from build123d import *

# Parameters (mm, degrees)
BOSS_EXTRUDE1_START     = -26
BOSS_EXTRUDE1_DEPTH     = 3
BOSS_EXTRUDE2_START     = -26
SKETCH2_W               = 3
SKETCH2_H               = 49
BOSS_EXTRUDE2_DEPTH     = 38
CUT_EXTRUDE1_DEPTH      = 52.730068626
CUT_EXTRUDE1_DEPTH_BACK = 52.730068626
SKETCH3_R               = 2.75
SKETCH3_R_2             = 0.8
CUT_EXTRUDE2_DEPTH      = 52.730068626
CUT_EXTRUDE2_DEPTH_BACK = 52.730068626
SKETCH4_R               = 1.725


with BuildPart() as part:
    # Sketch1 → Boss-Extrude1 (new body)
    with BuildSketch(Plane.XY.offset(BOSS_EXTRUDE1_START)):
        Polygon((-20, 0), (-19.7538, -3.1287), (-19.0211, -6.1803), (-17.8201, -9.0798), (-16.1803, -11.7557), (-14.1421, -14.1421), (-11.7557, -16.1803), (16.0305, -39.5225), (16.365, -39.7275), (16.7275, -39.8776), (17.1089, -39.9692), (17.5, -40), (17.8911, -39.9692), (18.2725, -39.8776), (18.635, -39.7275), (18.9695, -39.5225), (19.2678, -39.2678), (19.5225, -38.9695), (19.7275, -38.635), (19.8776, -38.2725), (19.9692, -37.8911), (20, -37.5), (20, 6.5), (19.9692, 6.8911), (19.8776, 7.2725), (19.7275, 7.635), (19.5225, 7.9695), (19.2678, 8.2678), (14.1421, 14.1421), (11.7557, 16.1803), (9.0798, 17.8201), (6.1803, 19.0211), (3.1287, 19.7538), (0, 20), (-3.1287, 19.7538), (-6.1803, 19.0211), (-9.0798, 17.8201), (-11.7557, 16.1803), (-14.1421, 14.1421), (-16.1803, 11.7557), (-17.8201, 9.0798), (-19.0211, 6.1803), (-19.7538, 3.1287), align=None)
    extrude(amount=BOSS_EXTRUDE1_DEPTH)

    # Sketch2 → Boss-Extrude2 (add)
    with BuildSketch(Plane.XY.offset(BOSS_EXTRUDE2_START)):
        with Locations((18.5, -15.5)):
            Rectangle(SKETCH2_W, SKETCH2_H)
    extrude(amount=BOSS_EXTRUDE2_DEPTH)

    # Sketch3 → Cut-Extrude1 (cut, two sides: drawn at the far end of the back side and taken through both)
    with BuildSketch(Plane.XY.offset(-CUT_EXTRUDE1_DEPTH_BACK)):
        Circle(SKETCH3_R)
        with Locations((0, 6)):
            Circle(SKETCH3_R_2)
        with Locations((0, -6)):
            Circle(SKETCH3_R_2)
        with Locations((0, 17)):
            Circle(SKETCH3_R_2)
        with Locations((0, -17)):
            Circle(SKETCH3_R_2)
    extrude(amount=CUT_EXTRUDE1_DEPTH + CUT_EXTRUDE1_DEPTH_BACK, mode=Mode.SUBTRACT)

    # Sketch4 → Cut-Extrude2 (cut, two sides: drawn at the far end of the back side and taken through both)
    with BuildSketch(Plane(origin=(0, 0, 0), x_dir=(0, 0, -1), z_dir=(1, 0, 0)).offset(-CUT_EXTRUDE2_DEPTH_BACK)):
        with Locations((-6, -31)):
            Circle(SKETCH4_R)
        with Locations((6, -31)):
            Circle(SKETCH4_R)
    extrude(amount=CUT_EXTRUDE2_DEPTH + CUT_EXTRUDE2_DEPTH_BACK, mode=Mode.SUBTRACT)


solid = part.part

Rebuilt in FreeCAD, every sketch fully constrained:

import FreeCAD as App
import Part
import Sketcher
from FreeCAD import Vector
Q = App.Units.Quantity


def add_polygon(sketch, points):
    """Adds a closed chain of lines whose ends are joined by coincident constraints."""
    first, n = sketch.GeometryCount, len(points)
    for a, b in zip(points, points[1:] + points[:1]):
        sketch.addGeometry(Part.LineSegment(App.Vector(*a, 0), App.Vector(*b, 0)), False)
    for i in range(n):
        sketch.addConstraint(Sketcher.Constraint("Coincident", first + i, 2, first + (i + 1) % n, 1))

doc = App.newDocument("Part")
body = doc.addObject("PartDesign::Body", "Body")

sketch1 = doc.addObject("Sketcher::SketchObject", "Sketch")
body.addObject(sketch1)
sketch1.AttachmentSupport = (doc.XY_Plane, [""])
sketch1.MapMode = "FlatFace"
sketch1.AttachmentOffset = App.Placement(Vector(0, 0, -26), App.Rotation())
add_polygon(sketch1, [(-20, 0), (-19.75, -3.13), (-19.02, -6.18), (-17.82, -9.08), (-16.18, -11.76), (-14.14, -14.14), (-11.76, -16.18), (16.03, -39.52), (16.36, -39.73), (16.73, -39.88), (17.11, -39.97), (17.5, -40), (17.89, -39.97), (18.27, -39.88), (18.64, -39.73), (18.97, -39.52), (19.27, -39.27), (19.52, -38.97), (19.73, -38.63), (19.88, -38.27), (19.97, -37.89), (20, -37.5), (20, 6.5), (19.97, 6.89), (19.88, 7.27), (19.73, 7.63), (19.52, 7.97), (19.27, 8.27), (14.14, 14.14), (11.76, 16.18), (9.08, 17.82), (6.18, 19.02), (3.13, 19.75), (0, 20), (-3.13, 19.75), (-6.18, 19.02), (-9.08, 17.82), (-11.76, 16.18), (-14.14, 14.14), (-16.18, 11.76), (-17.82, 9.08), (-19.02, 6.18), (-19.75, 3.13)])
sketch1.addConstraint(Sketcher.Constraint("Vertical", 21))
sketch1.addConstraint(Sketcher.Constraint("Symmetric", 4, 2, 27, 2, -1, 1))
sketch1.addConstraint(Sketcher.Constraint("Symmetric", 5, 2, 28, 2, -1, 1))
sketch1.addConstraint(Sketcher.Constraint("Symmetric", 31, 2, 33, 2, -2))
sketch1.addConstraint(Sketcher.Constraint("Symmetric", 30, 2, 34, 2, -2))
sketch1.addConstraint(Sketcher.Constraint("Symmetric", 29, 2, 35, 2, -2))
sketch1.addConstraint(Sketcher.Constraint("Symmetric", 28, 2, 36, 2, -2))
sketch1.addConstraint(Sketcher.Constraint("Symmetric", 27, 2, 37, 2, -2))
sketch1.addConstraint(Sketcher.Constraint("Symmetric", 3, 2, 38, 2, -1))
sketch1.addConstraint(Sketcher.Constraint("Symmetric", 2, 2, 39, 2, -1))
sketch1.addConstraint(Sketcher.Constraint("Symmetric", 1, 2, 40, 2, -1))
sketch1.addConstraint(Sketcher.Constraint("Symmetric", 0, 2, 41, 2, -1))
sketch1.addConstraint(Sketcher.Constraint("PointOnObject", 32, 2, -2))
sketch1.addConstraint(Sketcher.Constraint("PointOnObject", 42, 2, -1))
sketch1.addConstraint(Sketcher.Constraint("Perpendicular", 7, 17))
sketch1.addConstraint(Sketcher.Constraint("Perpendicular", 8, 18))
sketch1.addConstraint(Sketcher.Constraint("Perpendicular", 9, 19))
sketch1.addConstraint(Sketcher.Constraint("Perpendicular", 10, 20))
sketch1.addConstraint(Sketcher.Constraint("Perpendicular", 11, 22))
sketch1.addConstraint(Sketcher.Constraint("Perpendicular", 12, 23))
sketch1.addConstraint(Sketcher.Constraint("Perpendicular", 13, 24))
sketch1.addConstraint(Sketcher.Constraint("Perpendicular", 14, 25))
sketch1.addConstraint(Sketcher.Constraint("Perpendicular", 15, 26))
sketch1.addConstraint(Sketcher.Constraint("Perpendicular", 0, 33))
sketch1.addConstraint(Sketcher.Constraint("Perpendicular", 1, 34))
sketch1.addConstraint(Sketcher.Constraint("Perpendicular", 2, 35))
sketch1.addConstraint(Sketcher.Constraint("Perpendicular", 3, 36))
sketch1.addConstraint(Sketcher.Constraint("Perpendicular", 4, 37))
sketch1.addConstraint(Sketcher.Constraint("Horizontal", 9, 2, 11, 2))
sketch1.addConstraint(Sketcher.Constraint("Horizontal", 8, 2, 12, 2))
sketch1.addConstraint(Sketcher.Constraint("Horizontal", 7, 2, 13, 2))
sketch1.addConstraint(Sketcher.Constraint("Horizontal", 6, 2, 14, 2))
sketch1.addConstraint(Sketcher.Constraint("Vertical", 19, 2, 22, 2))
sketch1.addConstraint(Sketcher.Constraint("Vertical", 18, 2, 23, 2))
sketch1.addConstraint(Sketcher.Constraint("Vertical", 17, 2, 24, 2))
sketch1.addConstraint(Sketcher.Constraint("Vertical", 16, 2, 25, 2))
sketch1.addConstraint(Sketcher.Constraint("Vertical", 15, 2, 26, 2))
sketch1.addConstraint(Sketcher.Constraint("Equal", 0, 3))
sketch1.addConstraint(Sketcher.Constraint("Equal", 4, 5))
sketch1.addConstraint(Sketcher.Constraint("Equal", 10, 11))
sketch1.addConstraint(Sketcher.Constraint("Equal", 9, 12))
sketch1.addConstraint(Sketcher.Constraint("Equal", 8, 13))
sketch1.addConstraint(Sketcher.Constraint("Equal", 7, 14))
sketch1.addConstraint(Sketcher.Constraint("Equal", 12, 15))
sketch1.addConstraint(Sketcher.Constraint("Equal", 15, 16))
sketch1.addConstraint(Sketcher.Constraint("Equal", 14, 17))
sketch1.addConstraint(Sketcher.Constraint("Equal", 13, 18))
sketch1.addConstraint(Sketcher.Constraint("Equal", 16, 19))
sketch1.addConstraint(Sketcher.Constraint("Equal", 11, 20))
sketch1.addConstraint(Sketcher.Constraint("Equal", 23, 26))
sketch1.addConstraint(Sketcher.Constraint("Equal", 3, 29))
sketch1.addConstraint(Sketcher.Constraint("Equal", 2, 30))
sketch1.addConstraint(Sketcher.Constraint("Equal", 1, 31))
sketch1.addConstraint(Sketcher.Constraint("Equal", 29, 32))
sketch1.addConstraint(Sketcher.Constraint("DistanceY", 21, 1, 21, 2, Q("44 mm")))
sketch1.addConstraint(Sketcher.Constraint("DistanceY", 10, 2, -1, 1, Q("40 mm")))
sketch1.addConstraint(Sketcher.Constraint("DistanceX", -1, 1, 20, 2, Q("20 mm")))
sketch1.addConstraint(Sketcher.Constraint("DistanceY", -1, 1, 32, 2, Q("20 mm")))
sketch1.addConstraint(Sketcher.Constraint("DistanceY", 5, 2, 1, 2, Q("10 mm")))
sketch1.addConstraint(Sketcher.Constraint("DistanceX", -1, 1, 10, 2, Q("17.5 mm")))
sketch1.addConstraint(Sketcher.Constraint("DistanceX", 12, 2, 16, 2, Q("1.25 mm")))
sketch1.addConstraint(Sketcher.Constraint("DistanceX", -1, 1, 7, 2, Q("16.365 mm")))
sketch1.addConstraint(Sketcher.Constraint("DistanceX", 1, 2, 2, 2, Q("1.201 mm")))
sketch1.addConstraint(Sketcher.Constraint("DistanceY", 3, 2, 0, 2, Q("8.627 mm")))
sketch1.addConstraint(Sketcher.Constraint("DistanceX", 2, 2, 4, 2, Q("3.678 mm")))
sketch1.addConstraint(Sketcher.Constraint("DistanceY", 7, 2, 6, 2, Q("0.205 mm")))
sketch1.addConstraint(Sketcher.Constraint("DistanceX", 6, 2, 8, 2, Q("0.697 mm")))
sketch1.addConstraint(Sketcher.Constraint("DistanceX", 4, 2, 9, 2, Q("31.251 mm")))
sketch1.addConstraint(Sketcher.Constraint("DistanceX", 8, 2, 12, 2, Q("1.545 mm")))
sketch1.addConstraint(Sketcher.Constraint("DistanceX", 0, 2, 22, 2, Q("39.723 mm")))
sketch1.addConstraint(Sketcher.Constraint("DistanceX", 29, 2, 26, 2, Q("10.188 mm")))
sketch1.addConstraint(Sketcher.Constraint("DistanceY", 26, 2, 31, 2, Q("11.486 mm")))
sketch1.addConstraint(Sketcher.Constraint("DistanceX", 33, 2, 30, 2, Q("9.309 mm")))
sketch1.addConstraint(Sketcher.Constraint("DistanceX", 0, 2, -1, 1, Q("19.7538 mm")))
sketch1.addConstraint(Sketcher.Constraint("DistanceY", 0, 2, -1, 1, Q("3.1287 mm")))
pad1 = doc.addObject("PartDesign::Pad", "Pad")
body.addObject(pad1)
pad1.Profile = sketch1
pad1.Length = 3

sketch2 = doc.addObject("Sketcher::SketchObject", "Sketch001")
body.addObject(sketch2)
sketch2.AttachmentSupport = (doc.XY_Plane, [""])
sketch2.MapMode = "FlatFace"
sketch2.AttachmentOffset = App.Placement(Vector(0, 0, -26), App.Rotation())
add_polygon(sketch2, [(17, 9), (17, -40), (20, -40), (20, 9)])
sketch2.addConstraint(Sketcher.Constraint("Vertical", 0))
sketch2.addConstraint(Sketcher.Constraint("Horizontal", 1))
sketch2.addConstraint(Sketcher.Constraint("Vertical", 2))
sketch2.addConstraint(Sketcher.Constraint("Horizontal", 3))
sketch2.addConstraint(Sketcher.Constraint("DistanceX", 1, 1, 1, 2, Q("3 mm")))
sketch2.addConstraint(Sketcher.Constraint("DistanceY", 0, 2, 0, 1, Q("49 mm")))
sketch2.addConstraint(Sketcher.Constraint("DistanceX", -1, 1, 0, 2, Q("17 mm")))
sketch2.addConstraint(Sketcher.Constraint("DistanceY", 0, 2, -1, 1, Q("40 mm")))
pad2 = doc.addObject("PartDesign::Pad", "Pad001")
body.addObject(pad2)
pad2.Profile = sketch2
pad2.Length = 38

sketch3 = doc.addObject("Sketcher::SketchObject", "Sketch002")
body.addObject(sketch3)
sketch3.AttachmentSupport = (doc.XY_Plane, [""])
sketch3.MapMode = "FlatFace"
sketch3.addGeometry(Part.Circle(Vector(0, 0, 0), Vector(0, 0, 1), 2.8), False)
sketch3.addGeometry(Part.Circle(Vector(0, 6, 0), Vector(0, 0, 1), 0.8), False)
sketch3.addGeometry(Part.Circle(Vector(0, -6, 0), Vector(0, 0, 1), 0.8), False)
sketch3.addGeometry(Part.Circle(Vector(0, 17, 0), Vector(0, 0, 1), 0.8), False)
sketch3.addGeometry(Part.Circle(Vector(0, -17, 0), Vector(0, 0, 1), 0.8), False)
sketch3.addConstraint(Sketcher.Constraint("Coincident", 0, 3, -1, 1))
sketch3.addConstraint(Sketcher.Constraint("Equal", 1, 2))
sketch3.addConstraint(Sketcher.Constraint("Equal", 2, 3))
sketch3.addConstraint(Sketcher.Constraint("Equal", 3, 4))
sketch3.addConstraint(Sketcher.Constraint("Symmetric", 1, 3, 2, 3, -1, 1))
sketch3.addConstraint(Sketcher.Constraint("Symmetric", 3, 3, 4, 3, -1, 1))
sketch3.addConstraint(Sketcher.Constraint("PointOnObject", 1, 3, -2))
sketch3.addConstraint(Sketcher.Constraint("PointOnObject", 3, 3, -2))
sketch3.addConstraint(Sketcher.Constraint("Diameter", 0, Q("5.5 mm")))
sketch3.addConstraint(Sketcher.Constraint("Diameter", 1, Q("1.6 mm")))
sketch3.addConstraint(Sketcher.Constraint("DistanceY", -1, 1, 1, 3, Q("6 mm")))
sketch3.addConstraint(Sketcher.Constraint("DistanceY", -1, 1, 3, 3, Q("17 mm")))
pocket1 = doc.addObject("PartDesign::Pocket", "Pocket")
body.addObject(pocket1)
pocket1.Profile = sketch3
pocket1.Type = "ThroughAll"
pocket1.Midplane = True

sketch4 = doc.addObject("Sketcher::SketchObject", "Sketch003")
body.addObject(sketch4)
sketch4.AttachmentSupport = (doc.YZ_Plane, [""])
sketch4.MapMode = "FlatFace"
sketch4.addGeometry(Part.Circle(Vector(-31, 6, 0), Vector(0, 0, 1), 1.7), False)
sketch4.addGeometry(Part.Circle(Vector(-31, -6, 0), Vector(0, 0, 1), 1.7), False)
sketch4.addConstraint(Sketcher.Constraint("Equal", 0, 1))
sketch4.addConstraint(Sketcher.Constraint("Symmetric", 0, 3, 1, 3, -1))
sketch4.addConstraint(Sketcher.Constraint("Diameter", 0, Q("3.45 mm")))
sketch4.addConstraint(Sketcher.Constraint("DistanceX", 0, 3, -1, 1, Q("31 mm")))
sketch4.addConstraint(Sketcher.Constraint("DistanceY", -1, 1, 0, 3, Q("6 mm")))
pocket2 = doc.addObject("PartDesign::Pocket", "Pocket001")
body.addObject(pocket2)
pocket2.Profile = sketch4
pocket2.Type = "ThroughAll"
pocket2.Midplane = True

doc.recompute()
